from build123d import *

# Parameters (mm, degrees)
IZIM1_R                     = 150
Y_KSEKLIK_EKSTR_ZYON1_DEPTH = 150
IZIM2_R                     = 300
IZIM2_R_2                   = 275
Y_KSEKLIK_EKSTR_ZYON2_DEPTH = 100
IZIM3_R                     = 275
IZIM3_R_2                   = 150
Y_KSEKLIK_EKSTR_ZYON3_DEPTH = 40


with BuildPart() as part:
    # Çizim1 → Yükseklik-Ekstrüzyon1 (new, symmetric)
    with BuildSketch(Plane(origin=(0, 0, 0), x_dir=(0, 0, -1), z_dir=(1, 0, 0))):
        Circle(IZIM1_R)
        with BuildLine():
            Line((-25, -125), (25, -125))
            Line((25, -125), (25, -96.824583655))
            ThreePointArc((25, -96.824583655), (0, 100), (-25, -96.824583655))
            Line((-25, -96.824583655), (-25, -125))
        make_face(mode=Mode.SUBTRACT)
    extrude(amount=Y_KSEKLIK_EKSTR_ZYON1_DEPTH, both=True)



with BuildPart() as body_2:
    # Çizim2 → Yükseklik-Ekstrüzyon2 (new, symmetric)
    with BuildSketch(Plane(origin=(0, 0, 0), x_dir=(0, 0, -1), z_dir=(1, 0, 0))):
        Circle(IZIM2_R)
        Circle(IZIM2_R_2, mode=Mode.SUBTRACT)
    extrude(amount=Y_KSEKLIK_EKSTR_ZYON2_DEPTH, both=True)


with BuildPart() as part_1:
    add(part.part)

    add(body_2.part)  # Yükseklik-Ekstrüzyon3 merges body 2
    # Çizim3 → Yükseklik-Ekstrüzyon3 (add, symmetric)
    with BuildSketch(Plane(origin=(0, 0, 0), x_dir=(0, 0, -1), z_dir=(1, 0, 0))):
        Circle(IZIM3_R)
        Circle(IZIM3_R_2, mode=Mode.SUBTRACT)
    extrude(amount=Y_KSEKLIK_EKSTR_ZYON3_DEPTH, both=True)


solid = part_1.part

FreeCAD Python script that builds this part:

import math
import FreeCAD as App
import Part
import Sketcher

V = App.Vector
Q = App.Units.Quantity

doc = App.newDocument("Part")
body = doc.addObject("PartDesign::Body", "Body")

sketch1 = body.newObject("Sketcher::SketchObject", "Sketch")
sketch1.AttachmentSupport = (doc.getObject("YZ_Plane"), [""])
sketch1.MapMode = "FlatFace"
sketch1.addGeometry([
    Part.Circle(V(0, 0, 0), V(0, 0, 1), 150),
    Part.LineSegment(V(-125, -25, 0), V(-125, 25, 0)),
    Part.LineSegment(V(-125, 25, 0), V(-96.824584, 25, 0)),
    Part.ArcOfCircle(Part.Circle(V(0, 0, 0), V(0, 0, 1), 100), math.radians(-165.522488), math.radians(165.522488)),
    Part.LineSegment(V(-96.824584, -25, 0), V(-125, -25, 0)),
], False)
sketch1.addConstraint([
    Sketcher.Constraint("Coincident", 1, 2, 2, 1),
    Sketcher.Constraint("Coincident", 2, 2, 3, 2),
    Sketcher.Constraint("Coincident", 3, 1, 4, 1),
    Sketcher.Constraint("Coincident", 4, 2, 1, 1),
    Sketcher.Constraint("Vertical", 1),
    Sketcher.Constraint("Horizontal", 2),
    Sketcher.Constraint("Horizontal", 4),
    Sketcher.Constraint("Coincident", 0, 3, -1, 1),
    Sketcher.Constraint("Coincident", 3, 3, -1, 1),
    Sketcher.Constraint("Vertical", 2, 2, 3, 1),
    Sketcher.Constraint("Diameter", 0, Q("300 mm")),
    Sketcher.Constraint("Radius", 3, Q("100 mm")),
    Sketcher.Constraint("DistanceY", 1, 1, 1, 2, Q("50 mm")),
    Sketcher.Constraint("DistanceX", 1, 2, -1, 1, Q("125 mm")),
])
pad1 = body.newObject("PartDesign::Pad", "Pad")
pad1.Profile = sketch1
pad1.Length = 300
pad1.Midplane = True
body2 = doc.addObject("PartDesign::Body", "Body001")

sketch2 = body2.newObject("Sketcher::SketchObject", "Sketch001")
sketch2.AttachmentSupport = (doc.getObject("YZ_Plane001"), [""])
sketch2.MapMode = "FlatFace"
sketch2.addGeometry([
    Part.Circle(V(0, 0, 0), V(0, 0, 1), 300),
    Part.Circle(V(0, 0, 0), V(0, 0, 1), 275),
], False)
sketch2.addConstraint([
    Sketcher.Constraint("Coincident", 0, 3, -1, 1),
    Sketcher.Constraint("Coincident", 1, 3, -1, 1),
    Sketcher.Constraint("Diameter", 0, Q("600 mm")),
    Sketcher.Constraint("Diameter", 1, Q("550 mm")),
])
pad2 = body2.newObject("PartDesign::Pad", "Pad001")
pad2.Profile = sketch2
pad2.Length = 200
pad2.Midplane = True
body.AllowCompound = True
doc.recompute()

boolean = body.newObject("PartDesign::Boolean", "Boolean")
boolean.Type = "Fuse"
boolean.addObjects([body2])

sketch3 = body.newObject("Sketcher::SketchObject", "Sketch002")
sketch3.AttachmentSupport = (doc.getObject("YZ_Plane"), [""])
sketch3.MapMode = "FlatFace"
sketch3.addGeometry([
    Part.Circle(V(0, 0, 0), V(0, 0, 1), 275),
    Part.Circle(V(0, 0, 0), V(0, 0, 1), 150),
], False)
sketch3.addConstraint([
    Sketcher.Constraint("Coincident", 0, 3, -1, 1),
    Sketcher.Constraint("Coincident", 1, 3, -1, 1),
    Sketcher.Constraint("Diameter", 0, Q("550 mm")),
    Sketcher.Constraint("Diameter", 1, Q("300 mm")),
])
pad3 = body.newObject("PartDesign::Pad", "Pad002")
pad3.Profile = sketch3
pad3.Length = 80
pad3.Midplane = True

doc.recompute()
